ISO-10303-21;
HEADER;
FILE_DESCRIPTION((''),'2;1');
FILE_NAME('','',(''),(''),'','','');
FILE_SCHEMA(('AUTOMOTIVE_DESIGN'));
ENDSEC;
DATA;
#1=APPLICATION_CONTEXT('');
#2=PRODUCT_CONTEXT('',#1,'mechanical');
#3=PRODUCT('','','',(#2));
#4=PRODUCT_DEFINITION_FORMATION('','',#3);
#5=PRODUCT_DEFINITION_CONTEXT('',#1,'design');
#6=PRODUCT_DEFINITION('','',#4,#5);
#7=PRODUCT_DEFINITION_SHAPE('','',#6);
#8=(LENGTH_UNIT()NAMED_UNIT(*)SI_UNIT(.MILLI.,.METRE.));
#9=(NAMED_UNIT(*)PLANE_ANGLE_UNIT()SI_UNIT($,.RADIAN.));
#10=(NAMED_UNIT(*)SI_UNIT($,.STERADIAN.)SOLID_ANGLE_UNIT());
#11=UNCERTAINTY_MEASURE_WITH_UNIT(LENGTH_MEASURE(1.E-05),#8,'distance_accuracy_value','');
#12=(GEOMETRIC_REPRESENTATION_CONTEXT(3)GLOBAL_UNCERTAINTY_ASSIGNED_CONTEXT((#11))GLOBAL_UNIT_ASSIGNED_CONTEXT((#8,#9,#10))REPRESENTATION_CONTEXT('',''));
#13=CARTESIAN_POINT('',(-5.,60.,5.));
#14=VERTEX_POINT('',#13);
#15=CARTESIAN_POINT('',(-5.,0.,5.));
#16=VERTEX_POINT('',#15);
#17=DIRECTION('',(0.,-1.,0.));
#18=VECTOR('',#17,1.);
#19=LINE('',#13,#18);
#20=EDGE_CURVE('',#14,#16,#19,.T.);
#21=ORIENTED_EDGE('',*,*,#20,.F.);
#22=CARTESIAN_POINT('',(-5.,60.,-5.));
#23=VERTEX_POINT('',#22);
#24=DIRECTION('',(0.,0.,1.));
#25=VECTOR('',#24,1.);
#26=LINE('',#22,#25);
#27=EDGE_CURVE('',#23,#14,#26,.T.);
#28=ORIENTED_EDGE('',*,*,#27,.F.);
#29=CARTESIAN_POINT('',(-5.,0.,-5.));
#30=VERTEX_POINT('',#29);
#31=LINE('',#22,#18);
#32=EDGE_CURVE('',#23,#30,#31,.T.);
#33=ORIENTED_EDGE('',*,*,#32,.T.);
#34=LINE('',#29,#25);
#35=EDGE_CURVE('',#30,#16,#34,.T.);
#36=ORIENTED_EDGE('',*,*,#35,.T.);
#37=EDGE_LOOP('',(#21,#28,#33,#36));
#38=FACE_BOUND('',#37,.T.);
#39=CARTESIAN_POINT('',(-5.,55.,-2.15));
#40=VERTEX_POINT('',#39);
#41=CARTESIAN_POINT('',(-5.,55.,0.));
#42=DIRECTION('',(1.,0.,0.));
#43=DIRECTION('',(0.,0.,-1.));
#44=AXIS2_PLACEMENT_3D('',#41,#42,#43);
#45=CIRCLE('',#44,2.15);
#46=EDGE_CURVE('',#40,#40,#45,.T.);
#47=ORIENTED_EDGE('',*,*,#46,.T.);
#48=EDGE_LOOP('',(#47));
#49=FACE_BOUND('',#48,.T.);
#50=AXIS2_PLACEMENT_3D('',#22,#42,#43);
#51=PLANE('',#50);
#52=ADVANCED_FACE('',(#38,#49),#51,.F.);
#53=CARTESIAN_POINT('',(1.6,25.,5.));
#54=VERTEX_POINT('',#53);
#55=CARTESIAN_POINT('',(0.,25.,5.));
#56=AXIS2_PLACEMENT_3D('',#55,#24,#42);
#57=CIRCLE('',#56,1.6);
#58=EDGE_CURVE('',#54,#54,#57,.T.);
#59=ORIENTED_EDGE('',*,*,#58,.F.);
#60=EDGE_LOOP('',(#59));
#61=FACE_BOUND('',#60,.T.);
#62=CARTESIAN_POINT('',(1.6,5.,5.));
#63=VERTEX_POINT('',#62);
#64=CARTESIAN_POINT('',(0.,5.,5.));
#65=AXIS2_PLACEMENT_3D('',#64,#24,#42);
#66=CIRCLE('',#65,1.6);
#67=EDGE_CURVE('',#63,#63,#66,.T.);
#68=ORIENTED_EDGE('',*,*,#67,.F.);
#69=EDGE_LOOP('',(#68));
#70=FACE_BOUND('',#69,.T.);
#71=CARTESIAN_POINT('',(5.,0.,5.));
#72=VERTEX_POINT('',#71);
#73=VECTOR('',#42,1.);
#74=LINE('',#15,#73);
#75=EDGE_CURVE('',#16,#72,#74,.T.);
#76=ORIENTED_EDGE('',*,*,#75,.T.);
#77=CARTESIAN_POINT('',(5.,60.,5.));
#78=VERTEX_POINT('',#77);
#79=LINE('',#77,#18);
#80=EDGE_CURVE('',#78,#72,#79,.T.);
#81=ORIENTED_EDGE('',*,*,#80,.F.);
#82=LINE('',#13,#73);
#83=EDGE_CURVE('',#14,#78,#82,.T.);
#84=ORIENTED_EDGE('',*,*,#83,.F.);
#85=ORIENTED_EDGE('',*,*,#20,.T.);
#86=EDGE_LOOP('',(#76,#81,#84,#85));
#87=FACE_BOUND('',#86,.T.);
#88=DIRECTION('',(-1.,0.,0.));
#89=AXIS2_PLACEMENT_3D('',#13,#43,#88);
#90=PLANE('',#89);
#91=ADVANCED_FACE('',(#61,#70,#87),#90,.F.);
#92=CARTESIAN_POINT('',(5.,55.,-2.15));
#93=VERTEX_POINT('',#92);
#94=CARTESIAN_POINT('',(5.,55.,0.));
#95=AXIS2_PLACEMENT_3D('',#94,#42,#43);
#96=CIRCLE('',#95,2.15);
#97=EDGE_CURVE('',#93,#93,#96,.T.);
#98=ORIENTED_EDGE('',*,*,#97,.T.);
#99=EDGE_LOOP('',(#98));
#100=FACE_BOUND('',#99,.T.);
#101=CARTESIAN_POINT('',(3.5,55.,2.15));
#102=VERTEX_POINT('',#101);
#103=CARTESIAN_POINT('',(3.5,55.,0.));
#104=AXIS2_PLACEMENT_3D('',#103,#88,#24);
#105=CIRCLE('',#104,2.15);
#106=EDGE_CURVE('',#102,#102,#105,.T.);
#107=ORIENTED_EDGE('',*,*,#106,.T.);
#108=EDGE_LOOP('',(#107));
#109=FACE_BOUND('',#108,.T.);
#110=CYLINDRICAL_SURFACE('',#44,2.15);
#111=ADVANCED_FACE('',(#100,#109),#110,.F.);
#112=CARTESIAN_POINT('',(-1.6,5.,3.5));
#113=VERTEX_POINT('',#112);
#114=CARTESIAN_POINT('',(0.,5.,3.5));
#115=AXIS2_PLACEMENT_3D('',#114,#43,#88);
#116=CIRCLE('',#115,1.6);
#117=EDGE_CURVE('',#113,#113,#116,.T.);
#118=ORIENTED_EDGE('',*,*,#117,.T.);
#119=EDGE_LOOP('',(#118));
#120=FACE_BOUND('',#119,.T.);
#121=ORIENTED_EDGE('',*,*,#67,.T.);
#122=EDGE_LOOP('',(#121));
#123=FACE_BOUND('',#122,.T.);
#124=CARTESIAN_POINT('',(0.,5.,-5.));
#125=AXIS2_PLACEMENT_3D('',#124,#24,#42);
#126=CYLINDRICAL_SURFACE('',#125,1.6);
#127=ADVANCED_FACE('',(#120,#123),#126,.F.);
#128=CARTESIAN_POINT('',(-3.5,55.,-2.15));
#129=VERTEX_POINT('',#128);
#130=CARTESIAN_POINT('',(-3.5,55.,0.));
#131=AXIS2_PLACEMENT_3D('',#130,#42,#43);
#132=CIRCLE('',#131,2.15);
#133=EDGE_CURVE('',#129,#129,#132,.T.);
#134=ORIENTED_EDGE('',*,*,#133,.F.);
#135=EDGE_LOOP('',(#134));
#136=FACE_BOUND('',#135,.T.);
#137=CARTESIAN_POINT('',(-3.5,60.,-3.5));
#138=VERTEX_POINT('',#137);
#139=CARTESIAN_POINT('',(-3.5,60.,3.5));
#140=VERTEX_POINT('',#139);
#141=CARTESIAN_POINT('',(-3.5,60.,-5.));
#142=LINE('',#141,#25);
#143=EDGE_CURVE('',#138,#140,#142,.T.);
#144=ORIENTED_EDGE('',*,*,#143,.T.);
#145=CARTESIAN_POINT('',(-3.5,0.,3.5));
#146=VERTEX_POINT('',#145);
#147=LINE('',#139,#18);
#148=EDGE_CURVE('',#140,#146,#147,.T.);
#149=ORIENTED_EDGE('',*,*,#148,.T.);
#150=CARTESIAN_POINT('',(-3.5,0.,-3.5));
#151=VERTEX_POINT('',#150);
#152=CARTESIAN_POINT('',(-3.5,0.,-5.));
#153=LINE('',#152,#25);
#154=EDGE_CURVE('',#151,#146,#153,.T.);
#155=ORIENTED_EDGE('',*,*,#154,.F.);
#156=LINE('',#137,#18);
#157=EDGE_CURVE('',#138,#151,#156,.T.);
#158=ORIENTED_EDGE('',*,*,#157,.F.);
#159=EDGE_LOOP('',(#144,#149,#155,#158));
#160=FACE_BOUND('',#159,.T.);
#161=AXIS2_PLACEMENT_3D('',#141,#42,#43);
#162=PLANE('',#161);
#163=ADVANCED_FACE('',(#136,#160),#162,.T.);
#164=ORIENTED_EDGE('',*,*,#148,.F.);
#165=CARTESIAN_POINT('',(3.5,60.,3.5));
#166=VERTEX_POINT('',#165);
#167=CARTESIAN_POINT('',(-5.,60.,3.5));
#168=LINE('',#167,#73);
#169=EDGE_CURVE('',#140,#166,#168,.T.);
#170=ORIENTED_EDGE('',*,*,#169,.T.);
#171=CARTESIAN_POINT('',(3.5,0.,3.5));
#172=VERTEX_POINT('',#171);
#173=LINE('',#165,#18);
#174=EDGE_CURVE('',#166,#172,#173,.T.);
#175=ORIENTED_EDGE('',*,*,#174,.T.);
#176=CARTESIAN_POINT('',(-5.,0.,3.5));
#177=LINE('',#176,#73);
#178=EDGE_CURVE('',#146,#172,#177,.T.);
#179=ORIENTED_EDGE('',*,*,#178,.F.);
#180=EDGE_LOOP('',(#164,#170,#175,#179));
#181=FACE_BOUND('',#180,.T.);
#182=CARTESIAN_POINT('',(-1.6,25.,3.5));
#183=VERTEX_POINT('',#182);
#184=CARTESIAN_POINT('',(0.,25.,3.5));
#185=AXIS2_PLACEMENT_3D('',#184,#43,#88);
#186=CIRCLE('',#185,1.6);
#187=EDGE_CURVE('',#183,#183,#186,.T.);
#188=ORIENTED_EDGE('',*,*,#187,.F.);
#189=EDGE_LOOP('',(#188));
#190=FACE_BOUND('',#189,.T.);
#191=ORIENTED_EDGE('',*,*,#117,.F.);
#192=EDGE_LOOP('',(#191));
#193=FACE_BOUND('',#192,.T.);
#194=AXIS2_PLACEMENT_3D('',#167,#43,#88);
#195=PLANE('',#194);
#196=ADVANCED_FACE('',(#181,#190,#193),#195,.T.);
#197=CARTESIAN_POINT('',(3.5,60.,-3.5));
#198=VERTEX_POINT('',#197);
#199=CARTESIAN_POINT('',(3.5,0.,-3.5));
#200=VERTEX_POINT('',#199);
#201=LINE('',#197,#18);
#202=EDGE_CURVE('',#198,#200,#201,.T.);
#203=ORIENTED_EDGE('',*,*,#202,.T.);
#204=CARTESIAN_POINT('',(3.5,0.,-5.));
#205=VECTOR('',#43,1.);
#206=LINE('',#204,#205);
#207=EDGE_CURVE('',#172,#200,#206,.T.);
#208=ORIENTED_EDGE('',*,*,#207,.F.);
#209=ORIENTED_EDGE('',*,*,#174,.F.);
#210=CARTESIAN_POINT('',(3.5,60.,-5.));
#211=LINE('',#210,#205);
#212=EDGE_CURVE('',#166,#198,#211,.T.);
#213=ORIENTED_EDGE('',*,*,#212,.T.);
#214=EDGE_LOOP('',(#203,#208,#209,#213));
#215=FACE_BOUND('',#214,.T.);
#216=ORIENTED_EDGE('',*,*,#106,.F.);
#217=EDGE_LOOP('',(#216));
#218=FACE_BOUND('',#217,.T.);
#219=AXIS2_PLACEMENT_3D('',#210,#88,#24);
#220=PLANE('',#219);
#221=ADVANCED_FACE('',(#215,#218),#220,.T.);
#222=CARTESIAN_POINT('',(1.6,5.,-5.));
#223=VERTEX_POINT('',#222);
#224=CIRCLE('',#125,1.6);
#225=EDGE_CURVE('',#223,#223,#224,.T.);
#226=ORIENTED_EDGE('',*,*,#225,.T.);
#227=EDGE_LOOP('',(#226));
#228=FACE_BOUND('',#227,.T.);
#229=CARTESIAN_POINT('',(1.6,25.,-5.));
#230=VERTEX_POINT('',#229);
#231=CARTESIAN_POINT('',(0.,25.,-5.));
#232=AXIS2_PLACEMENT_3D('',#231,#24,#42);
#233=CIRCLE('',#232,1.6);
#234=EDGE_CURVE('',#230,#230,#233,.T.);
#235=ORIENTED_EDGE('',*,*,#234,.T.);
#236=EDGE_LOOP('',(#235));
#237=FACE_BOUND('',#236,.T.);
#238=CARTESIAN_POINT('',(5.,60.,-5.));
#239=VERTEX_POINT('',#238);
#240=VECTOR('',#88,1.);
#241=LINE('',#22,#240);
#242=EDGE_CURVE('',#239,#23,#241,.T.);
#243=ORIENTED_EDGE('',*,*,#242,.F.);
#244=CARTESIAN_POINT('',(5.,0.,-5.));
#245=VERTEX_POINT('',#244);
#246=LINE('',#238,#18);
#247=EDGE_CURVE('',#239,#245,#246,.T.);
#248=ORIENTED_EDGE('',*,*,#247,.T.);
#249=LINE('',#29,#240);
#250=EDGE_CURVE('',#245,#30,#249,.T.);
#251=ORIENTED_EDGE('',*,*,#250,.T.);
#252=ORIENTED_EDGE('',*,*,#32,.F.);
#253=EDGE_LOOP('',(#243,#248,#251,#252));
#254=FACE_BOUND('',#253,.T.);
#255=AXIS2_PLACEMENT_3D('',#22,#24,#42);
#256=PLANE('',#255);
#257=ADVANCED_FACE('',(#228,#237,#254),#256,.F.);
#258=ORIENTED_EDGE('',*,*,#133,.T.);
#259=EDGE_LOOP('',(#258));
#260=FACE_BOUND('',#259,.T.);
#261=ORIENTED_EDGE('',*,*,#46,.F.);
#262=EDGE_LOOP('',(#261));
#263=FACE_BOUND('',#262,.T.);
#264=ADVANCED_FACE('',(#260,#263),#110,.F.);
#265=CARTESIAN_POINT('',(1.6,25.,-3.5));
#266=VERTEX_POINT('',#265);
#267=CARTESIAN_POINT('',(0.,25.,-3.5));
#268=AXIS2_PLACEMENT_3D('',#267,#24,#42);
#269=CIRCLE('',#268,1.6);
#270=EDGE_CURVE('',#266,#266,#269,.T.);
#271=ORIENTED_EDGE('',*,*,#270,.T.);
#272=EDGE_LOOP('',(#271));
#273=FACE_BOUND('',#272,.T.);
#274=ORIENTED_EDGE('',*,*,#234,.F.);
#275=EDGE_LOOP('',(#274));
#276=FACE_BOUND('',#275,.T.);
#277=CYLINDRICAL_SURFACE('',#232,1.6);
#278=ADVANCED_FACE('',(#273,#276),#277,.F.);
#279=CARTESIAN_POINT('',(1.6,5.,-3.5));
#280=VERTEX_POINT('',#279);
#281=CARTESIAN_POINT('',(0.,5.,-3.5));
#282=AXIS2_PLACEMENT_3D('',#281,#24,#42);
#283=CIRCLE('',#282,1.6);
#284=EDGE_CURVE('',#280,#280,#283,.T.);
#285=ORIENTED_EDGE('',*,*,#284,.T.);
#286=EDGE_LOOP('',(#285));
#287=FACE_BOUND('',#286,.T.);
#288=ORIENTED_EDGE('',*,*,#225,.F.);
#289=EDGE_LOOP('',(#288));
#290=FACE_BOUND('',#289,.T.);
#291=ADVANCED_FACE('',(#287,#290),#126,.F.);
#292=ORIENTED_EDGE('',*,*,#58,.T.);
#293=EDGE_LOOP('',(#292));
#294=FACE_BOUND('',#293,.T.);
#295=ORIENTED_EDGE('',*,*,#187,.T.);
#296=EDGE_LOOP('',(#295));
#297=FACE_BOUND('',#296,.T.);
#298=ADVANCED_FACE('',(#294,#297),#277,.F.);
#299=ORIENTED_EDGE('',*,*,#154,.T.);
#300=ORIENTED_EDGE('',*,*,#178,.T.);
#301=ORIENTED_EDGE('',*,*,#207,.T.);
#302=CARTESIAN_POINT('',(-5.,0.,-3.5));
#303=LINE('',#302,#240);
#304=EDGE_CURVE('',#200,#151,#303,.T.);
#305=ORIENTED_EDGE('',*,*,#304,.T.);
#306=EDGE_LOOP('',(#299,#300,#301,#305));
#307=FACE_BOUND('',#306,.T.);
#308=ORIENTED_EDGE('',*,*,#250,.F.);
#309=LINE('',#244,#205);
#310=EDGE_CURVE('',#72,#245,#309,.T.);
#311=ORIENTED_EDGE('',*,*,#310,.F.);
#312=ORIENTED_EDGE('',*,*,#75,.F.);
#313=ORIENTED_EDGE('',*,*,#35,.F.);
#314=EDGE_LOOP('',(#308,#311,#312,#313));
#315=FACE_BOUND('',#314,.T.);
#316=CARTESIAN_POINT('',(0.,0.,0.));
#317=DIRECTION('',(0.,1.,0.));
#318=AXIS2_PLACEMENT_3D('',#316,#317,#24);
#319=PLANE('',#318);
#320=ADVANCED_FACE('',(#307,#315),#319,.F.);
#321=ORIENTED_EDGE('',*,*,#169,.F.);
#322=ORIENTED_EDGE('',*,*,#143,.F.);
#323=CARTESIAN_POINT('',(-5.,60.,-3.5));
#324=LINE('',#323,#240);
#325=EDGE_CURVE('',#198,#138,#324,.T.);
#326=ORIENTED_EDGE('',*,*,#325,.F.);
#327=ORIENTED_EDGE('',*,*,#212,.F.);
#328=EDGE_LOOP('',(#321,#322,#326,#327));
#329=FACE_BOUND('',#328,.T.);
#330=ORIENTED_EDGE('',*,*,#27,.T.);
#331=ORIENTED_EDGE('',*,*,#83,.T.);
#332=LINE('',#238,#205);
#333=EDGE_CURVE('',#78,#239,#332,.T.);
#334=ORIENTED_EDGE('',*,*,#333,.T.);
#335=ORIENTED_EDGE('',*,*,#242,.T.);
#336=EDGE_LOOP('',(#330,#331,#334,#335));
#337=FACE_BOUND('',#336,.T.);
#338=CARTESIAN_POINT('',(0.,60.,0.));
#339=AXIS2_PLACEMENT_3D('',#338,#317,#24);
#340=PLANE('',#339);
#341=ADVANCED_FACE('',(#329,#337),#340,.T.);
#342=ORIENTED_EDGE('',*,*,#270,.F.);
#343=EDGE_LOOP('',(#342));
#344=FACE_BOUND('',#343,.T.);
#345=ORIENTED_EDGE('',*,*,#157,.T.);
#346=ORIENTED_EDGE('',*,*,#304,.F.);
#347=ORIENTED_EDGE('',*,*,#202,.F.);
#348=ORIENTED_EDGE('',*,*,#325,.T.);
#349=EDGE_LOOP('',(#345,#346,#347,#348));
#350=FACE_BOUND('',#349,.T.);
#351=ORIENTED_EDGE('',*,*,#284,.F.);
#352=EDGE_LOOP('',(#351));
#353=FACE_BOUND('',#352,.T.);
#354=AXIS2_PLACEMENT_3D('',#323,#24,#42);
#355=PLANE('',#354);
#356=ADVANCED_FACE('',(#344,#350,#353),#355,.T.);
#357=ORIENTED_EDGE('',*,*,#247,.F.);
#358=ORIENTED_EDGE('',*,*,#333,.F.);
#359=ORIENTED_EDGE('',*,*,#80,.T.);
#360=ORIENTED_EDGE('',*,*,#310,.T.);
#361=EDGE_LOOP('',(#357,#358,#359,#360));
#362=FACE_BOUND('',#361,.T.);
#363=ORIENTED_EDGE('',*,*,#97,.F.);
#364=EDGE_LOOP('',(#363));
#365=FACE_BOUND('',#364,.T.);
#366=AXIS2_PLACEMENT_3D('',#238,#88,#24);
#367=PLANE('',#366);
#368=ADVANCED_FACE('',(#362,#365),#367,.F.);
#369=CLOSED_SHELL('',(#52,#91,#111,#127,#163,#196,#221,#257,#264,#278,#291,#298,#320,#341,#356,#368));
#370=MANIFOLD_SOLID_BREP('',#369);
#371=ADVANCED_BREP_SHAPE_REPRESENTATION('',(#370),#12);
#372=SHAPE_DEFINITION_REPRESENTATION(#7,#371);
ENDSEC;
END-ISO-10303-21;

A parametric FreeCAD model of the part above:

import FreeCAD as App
import Part
import Sketcher

V = App.Vector


def add_polygon(sketch, points):
    """Adds a closed chain of lines whose ends are joined by coincident constraints."""
    first, n = sketch.GeometryCount, len(points)
    for a, b in zip(points, points[1:] + points[:1]):
        sketch.addGeometry(Part.LineSegment(App.Vector(*a, 0), App.Vector(*b, 0)), False)
    for i in range(n):
        sketch.addConstraint(Sketcher.Constraint("Coincident", first + i, 2, first + (i + 1) % n, 1))

doc = App.newDocument("Part")
body = doc.addObject("PartDesign::Body", "Body")

sketch1 = doc.addObject("Sketcher::SketchObject", "Sketch")
body.addObject(sketch1)
sketch1.AttachmentSupport = (doc.XZ_Plane, [""])
sketch1.MapMode = "FlatFace"
add_polygon(sketch1, [(-5, -5), (-5, 5), (5, 5), (5, -5)])
add_polygon(sketch1, [(4, 4), (-4, 4), (-4, -4), (4, -4)])
sketch1.addConstraint([
    Sketcher.Constraint("Vertical", 0),
    Sketcher.Constraint("Horizontal", 1),
    Sketcher.Constraint("Vertical", 2),
    Sketcher.Constraint("Horizontal", 3),
    Sketcher.Constraint("Horizontal", 4),
    Sketcher.Constraint("Vertical", 5),
    Sketcher.Constraint("Horizontal", 6),
    Sketcher.Constraint("Vertical", 7),
    Sketcher.Constraint("Symmetric", 0, 2, 2, 2, -1, 1),
    Sketcher.Constraint("Symmetric", 4, 2, 6, 2, -1, 1),
    Sketcher.Constraint("Equal", 3, 0),
    Sketcher.Constraint("Equal", 6, 5),
    Sketcher.Constraint("DistanceX", 1, 1, 1, 2, 10.0),
    Sketcher.Constraint("DistanceX", 4, 2, 4, 1, 7.0),
])
pad1 = doc.addObject("PartDesign::Pad", "Pad")
body.addObject(pad1)
pad1.Profile = sketch1
pad1.Length = 60
pad1.Reversed = True

sketch2 = doc.addObject("Sketcher::SketchObject", "Sketch001")
body.addObject(sketch2)
sketch2.AttachmentSupport = (doc.XY_Plane, [""])
sketch2.MapMode = "FlatFace"
sketch2.AttachmentOffset = App.Placement(V(0, 0, 5), App.Rotation())
sketch2.addGeometry([
    Part.Circle(V(0, 25, 0), V(0, 0, 1), 1.6),
    Part.Circle(V(0, 5, 0), V(0, 0, 1), 1.6),
], False)
sketch2.addConstraint([
    Sketcher.Constraint("Equal", 0, 1),
    Sketcher.Constraint("PointOnObject", 0, 3, -2),
    Sketcher.Constraint("PointOnObject", 1, 3, -2),
    Sketcher.Constraint("Diameter", 0, 3.2),
    Sketcher.Constraint("DistanceY", -1, 1, 0, 3, 25.0),
    Sketcher.Constraint("DistanceY", -1, 1, 1, 3, 5.0),
])
pocket1 = doc.addObject("PartDesign::Pocket", "Pocket")
body.addObject(pocket1)
pocket1.Profile = sketch2
pocket1.Type = "ThroughAll"

sketch3 = doc.addObject("Sketcher::SketchObject", "Sketch002")
body.addObject(sketch3)
sketch3.AttachmentSupport = (doc.YZ_Plane, [""])
sketch3.MapMode = "FlatFace"
sketch3.AttachmentOffset = App.Placement(V(0, 0, 5), App.Rotation())
sketch3.addGeometry(Part.Circle(V(55, 0, 0), V(0, 0, 1), 2.1), False)
sketch3.addConstraint([
    Sketcher.Constraint("PointOnObject", 0, 3, -1),
    Sketcher.Constraint("Diameter", 0, 4.3),
    Sketcher.Constraint("DistanceX", -1, 1, 0, 3, 55.0),
])
pocket2 = doc.addObject("PartDesign::Pocket", "Pocket001")
body.addObject(pocket2)
pocket2.Profile = sketch3
pocket2.Type = "ThroughAll"

doc.recompute()
